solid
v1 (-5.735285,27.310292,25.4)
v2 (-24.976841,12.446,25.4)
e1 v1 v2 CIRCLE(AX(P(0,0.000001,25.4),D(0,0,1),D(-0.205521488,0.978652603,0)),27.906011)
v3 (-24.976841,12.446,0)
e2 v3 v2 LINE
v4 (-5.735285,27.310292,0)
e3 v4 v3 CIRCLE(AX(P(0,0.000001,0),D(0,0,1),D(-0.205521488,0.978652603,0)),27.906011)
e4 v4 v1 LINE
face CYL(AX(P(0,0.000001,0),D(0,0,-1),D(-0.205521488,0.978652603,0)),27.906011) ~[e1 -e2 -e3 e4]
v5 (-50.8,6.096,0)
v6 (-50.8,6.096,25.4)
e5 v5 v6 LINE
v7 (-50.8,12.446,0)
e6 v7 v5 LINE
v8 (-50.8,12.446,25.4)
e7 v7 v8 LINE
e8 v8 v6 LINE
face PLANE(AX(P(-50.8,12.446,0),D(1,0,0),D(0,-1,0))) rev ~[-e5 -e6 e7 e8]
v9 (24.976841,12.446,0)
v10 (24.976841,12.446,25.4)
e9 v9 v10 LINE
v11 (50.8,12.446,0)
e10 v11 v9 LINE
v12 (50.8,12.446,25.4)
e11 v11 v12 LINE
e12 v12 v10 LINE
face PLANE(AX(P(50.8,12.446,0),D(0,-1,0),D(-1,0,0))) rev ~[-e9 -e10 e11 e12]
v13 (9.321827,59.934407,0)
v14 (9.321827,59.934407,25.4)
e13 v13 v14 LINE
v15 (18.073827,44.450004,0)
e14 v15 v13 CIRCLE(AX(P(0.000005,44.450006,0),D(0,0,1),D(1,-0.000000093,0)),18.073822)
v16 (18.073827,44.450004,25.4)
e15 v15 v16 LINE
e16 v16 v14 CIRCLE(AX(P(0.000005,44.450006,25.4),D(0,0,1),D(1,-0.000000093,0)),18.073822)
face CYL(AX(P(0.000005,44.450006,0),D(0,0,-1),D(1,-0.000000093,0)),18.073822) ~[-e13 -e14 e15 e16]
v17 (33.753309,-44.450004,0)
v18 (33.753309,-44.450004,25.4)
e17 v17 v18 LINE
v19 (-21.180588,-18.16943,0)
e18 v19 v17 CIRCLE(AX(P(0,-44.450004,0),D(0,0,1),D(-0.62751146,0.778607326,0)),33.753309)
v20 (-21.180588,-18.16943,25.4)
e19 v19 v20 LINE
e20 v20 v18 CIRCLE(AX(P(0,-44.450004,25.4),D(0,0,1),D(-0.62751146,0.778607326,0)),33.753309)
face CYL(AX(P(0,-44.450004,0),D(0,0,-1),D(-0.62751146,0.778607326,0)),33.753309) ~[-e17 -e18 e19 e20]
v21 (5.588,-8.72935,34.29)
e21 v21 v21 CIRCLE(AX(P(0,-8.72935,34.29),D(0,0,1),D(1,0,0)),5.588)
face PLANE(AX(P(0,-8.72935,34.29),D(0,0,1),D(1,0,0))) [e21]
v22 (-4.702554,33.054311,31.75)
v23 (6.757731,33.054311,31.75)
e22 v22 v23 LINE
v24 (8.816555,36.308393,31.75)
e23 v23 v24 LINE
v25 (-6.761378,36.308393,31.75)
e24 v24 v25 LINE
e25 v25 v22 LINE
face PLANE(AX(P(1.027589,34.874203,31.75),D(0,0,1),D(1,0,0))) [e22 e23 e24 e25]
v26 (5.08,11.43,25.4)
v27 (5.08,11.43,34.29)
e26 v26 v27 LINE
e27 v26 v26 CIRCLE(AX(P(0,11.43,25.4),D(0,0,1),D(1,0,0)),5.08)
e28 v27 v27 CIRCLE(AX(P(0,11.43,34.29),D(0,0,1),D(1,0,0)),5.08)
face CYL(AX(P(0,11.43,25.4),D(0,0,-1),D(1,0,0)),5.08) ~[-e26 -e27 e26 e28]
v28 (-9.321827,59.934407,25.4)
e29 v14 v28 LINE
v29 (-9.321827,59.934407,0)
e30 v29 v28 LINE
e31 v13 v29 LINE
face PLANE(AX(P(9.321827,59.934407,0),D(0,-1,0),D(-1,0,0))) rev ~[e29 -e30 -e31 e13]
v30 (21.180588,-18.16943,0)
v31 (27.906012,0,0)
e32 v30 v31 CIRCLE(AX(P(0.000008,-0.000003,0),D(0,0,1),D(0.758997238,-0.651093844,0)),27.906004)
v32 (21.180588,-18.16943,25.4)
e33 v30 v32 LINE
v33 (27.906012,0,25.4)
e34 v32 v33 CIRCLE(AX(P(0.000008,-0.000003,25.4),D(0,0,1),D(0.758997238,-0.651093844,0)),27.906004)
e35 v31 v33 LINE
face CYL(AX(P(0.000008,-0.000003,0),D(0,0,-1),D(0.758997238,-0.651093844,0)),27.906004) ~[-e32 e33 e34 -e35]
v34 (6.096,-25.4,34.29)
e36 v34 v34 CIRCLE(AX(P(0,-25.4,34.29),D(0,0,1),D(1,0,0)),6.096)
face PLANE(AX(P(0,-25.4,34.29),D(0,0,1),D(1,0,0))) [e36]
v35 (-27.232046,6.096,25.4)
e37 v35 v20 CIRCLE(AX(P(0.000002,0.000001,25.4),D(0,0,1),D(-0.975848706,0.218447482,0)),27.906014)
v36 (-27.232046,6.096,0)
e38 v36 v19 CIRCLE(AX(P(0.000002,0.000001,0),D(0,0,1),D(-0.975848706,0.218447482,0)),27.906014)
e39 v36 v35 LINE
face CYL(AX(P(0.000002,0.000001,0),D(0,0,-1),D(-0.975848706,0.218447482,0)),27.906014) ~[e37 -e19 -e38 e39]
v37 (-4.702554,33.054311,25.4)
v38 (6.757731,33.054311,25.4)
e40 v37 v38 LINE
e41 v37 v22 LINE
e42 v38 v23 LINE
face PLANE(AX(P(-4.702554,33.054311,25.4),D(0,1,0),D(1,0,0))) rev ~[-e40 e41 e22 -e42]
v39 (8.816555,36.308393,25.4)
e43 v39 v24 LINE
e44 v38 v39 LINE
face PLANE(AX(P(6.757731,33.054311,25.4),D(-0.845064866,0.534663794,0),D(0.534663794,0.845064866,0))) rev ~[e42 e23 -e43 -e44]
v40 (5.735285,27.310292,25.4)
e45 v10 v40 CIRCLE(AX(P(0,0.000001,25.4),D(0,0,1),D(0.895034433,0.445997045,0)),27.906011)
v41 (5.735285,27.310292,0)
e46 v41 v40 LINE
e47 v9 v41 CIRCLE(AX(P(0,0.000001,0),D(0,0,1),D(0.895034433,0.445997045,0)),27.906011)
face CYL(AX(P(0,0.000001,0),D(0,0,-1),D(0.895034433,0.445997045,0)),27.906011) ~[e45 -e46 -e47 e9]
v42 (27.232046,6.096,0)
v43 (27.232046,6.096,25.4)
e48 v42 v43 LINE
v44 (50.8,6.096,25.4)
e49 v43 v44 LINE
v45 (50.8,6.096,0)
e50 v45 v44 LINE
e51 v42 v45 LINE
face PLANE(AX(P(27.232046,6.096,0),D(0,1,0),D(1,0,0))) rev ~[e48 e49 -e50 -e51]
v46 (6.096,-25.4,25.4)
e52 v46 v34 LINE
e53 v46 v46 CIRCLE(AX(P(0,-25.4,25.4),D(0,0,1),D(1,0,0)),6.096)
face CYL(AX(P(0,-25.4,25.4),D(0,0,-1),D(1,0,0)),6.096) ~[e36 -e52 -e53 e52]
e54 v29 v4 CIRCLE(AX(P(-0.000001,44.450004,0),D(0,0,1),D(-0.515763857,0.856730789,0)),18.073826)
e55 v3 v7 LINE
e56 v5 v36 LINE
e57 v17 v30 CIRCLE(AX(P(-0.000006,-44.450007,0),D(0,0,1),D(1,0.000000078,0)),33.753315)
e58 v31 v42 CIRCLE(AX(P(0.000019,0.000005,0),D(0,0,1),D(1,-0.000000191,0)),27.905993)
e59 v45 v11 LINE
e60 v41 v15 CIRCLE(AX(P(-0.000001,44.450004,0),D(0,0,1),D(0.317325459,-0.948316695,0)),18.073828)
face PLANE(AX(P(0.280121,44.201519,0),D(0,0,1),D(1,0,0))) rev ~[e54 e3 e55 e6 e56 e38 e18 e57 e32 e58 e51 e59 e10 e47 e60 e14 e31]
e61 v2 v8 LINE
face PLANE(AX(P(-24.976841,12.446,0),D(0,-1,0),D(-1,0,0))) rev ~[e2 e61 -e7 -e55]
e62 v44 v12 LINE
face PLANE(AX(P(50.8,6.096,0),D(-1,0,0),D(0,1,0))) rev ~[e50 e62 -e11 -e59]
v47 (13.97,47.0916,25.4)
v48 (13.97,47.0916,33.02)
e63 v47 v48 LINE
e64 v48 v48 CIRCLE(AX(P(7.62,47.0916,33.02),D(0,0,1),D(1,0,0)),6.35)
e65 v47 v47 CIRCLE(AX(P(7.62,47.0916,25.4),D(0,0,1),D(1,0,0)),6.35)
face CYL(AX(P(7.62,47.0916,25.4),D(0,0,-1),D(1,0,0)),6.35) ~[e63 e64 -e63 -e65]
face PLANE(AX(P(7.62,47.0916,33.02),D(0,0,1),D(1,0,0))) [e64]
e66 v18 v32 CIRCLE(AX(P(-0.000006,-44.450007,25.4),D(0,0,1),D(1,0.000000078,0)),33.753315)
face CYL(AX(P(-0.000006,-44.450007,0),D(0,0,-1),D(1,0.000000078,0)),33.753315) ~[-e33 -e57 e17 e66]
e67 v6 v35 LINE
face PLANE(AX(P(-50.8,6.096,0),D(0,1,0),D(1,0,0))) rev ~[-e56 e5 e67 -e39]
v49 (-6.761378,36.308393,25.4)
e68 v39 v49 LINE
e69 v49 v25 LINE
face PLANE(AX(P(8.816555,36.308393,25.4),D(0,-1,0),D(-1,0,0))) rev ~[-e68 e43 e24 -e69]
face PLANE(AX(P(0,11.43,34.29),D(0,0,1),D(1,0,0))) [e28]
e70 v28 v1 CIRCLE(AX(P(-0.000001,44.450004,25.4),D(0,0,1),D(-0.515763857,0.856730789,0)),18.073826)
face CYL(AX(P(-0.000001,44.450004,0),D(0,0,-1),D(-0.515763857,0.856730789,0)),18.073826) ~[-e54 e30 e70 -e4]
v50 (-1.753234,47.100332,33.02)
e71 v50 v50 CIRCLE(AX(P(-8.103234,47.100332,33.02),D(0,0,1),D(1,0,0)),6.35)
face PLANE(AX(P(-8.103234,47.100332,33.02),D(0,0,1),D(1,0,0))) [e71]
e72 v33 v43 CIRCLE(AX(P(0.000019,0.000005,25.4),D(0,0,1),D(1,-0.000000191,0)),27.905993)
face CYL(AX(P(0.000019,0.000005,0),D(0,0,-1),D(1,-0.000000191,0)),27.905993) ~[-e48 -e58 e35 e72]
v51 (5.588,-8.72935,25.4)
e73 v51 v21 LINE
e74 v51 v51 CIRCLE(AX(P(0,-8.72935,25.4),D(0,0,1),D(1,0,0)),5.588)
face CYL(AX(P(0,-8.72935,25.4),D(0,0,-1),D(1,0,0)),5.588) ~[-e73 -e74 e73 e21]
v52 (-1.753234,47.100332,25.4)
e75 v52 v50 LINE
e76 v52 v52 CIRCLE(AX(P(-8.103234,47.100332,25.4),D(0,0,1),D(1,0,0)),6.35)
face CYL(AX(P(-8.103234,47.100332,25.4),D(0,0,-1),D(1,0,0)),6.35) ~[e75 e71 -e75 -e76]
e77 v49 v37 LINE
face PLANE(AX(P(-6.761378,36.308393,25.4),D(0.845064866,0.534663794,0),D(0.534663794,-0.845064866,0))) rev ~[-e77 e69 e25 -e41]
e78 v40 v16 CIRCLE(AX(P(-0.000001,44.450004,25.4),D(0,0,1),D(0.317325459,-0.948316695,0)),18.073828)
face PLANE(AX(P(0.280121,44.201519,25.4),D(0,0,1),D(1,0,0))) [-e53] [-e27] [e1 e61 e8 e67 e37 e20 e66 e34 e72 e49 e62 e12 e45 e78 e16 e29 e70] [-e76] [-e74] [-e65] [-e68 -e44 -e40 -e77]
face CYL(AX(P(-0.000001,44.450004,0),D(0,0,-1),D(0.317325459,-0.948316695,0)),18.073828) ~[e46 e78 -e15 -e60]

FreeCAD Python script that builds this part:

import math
import FreeCAD as App
import Part
import Sketcher
from FreeCAD import Vector
Q = App.Units.Quantity

doc = App.newDocument("Part")
body = doc.addObject("PartDesign::Body", "Body")

sketch1 = body.newObject("Sketcher::SketchObject", "Sketch")
sketch1.AttachmentSupport = (doc.getObject("XY_Plane"), [""])
sketch1.MapMode = "FlatFace"
sketch1.addGeometry([
    Part.LineSegment(Vector(9.321827, 59.934407, 0), Vector(-9.321827, 59.934407, 0)),
    Part.ArcOfCircle(Part.Circle(Vector(-0.000001, 44.450004, 0), Vector(0, 0, 1), 18.073826), math.radians(121.048526), math.radians(251.498746)),
    Part.ArcOfCircle(Part.Circle(Vector(0, 0.000001, 0), Vector(0, 0, 1), 27.906011), math.radians(101.860028), math.radians(153.512853)),
    Part.LineSegment(Vector(-24.976841, 12.446, 0), Vector(-50.8, 12.446, 0)),
    Part.LineSegment(Vector(-50.8, 12.446, 0), Vector(-50.8, 6.096, 0)),
    Part.LineSegment(Vector(-50.8, 6.096, 0), Vector(-27.232046, 6.096, 0)),
    Part.ArcOfCircle(Part.Circle(Vector(0.000002, 0.000001, 0), Vector(0, 0, 1), 27.906014), math.radians(167.382137), math.radians(220.624117)),
    Part.ArcOfCircle(Part.Circle(Vector(0, -44.450004, 0), Vector(0, 0, 1), 33.753309), math.radians(128.86676), math.radians(359.999999)),
    Part.ArcOfCircle(Part.Circle(Vector(-0.000006, -44.450007, 0), Vector(0, 0, 1), 33.753315), math.radians(0.000004), math.radians(51.133235)),
    Part.ArcOfCircle(Part.Circle(Vector(0.000008, -0.000003, 0), Vector(0, 0, 1), 27.906004), math.radians(-40.624124), math.radians(0.000006)),
    Part.ArcOfCircle(Part.Circle(Vector(0.000019, 0.000005, 0), Vector(0, 0, 1), 27.905993), math.radians(-0.000011), math.radians(12.617864)),
    Part.LineSegment(Vector(27.232046, 6.096, 0), Vector(50.8, 6.096, 0)),
    Part.LineSegment(Vector(50.8, 6.096, 0), Vector(50.8, 12.446, 0)),
    Part.LineSegment(Vector(50.8, 12.446, 0), Vector(24.976841, 12.446, 0)),
    Part.ArcOfCircle(Part.Circle(Vector(0, 0.000001, 0), Vector(0, 0, 1), 27.906011), math.radians(26.487147), math.radians(78.139972)),
    Part.ArcOfCircle(Part.Circle(Vector(-0.000001, 44.450004, 0), Vector(0, 0, 1), 18.073828), math.radians(-71.498743), math.radians(-0.000002)),
    Part.ArcOfCircle(Part.Circle(Vector(0.000005, 44.450006, 0), Vector(0, 0, 1), 18.073822), math.radians(-0.000005), math.radians(58.951481)),
], False)
sketch1.addConstraint([
    Sketcher.Constraint("Coincident", 0, 2, 1, 1),
    Sketcher.Constraint("Coincident", 1, 2, 2, 1),
    Sketcher.Constraint("Coincident", 2, 2, 3, 1),
    Sketcher.Constraint("Coincident", 3, 2, 4, 1),
    Sketcher.Constraint("Coincident", 4, 2, 5, 1),
    Sketcher.Constraint("Coincident", 5, 2, 6, 1),
    Sketcher.Constraint("Coincident", 6, 2, 7, 1),
    Sketcher.Constraint("Coincident", 7, 2, 8, 1),
    Sketcher.Constraint("Coincident", 8, 2, 9, 1),
    Sketcher.Constraint("Coincident", 9, 2, 10, 1),
    Sketcher.Constraint("Coincident", 10, 2, 11, 1),
    Sketcher.Constraint("Coincident", 11, 2, 12, 1),
    Sketcher.Constraint("Coincident", 12, 2, 13, 1),
    Sketcher.Constraint("Coincident", 13, 2, 14, 1),
    Sketcher.Constraint("Coincident", 14, 2, 15, 1),
    Sketcher.Constraint("Coincident", 15, 2, 16, 1),
    Sketcher.Constraint("Coincident", 16, 2, 0, 1),
    Sketcher.Constraint("Horizontal", 0),
    Sketcher.Constraint("Horizontal", 3),
    Sketcher.Constraint("Vertical", 4),
    Sketcher.Constraint("Horizontal", 5),
    Sketcher.Constraint("Horizontal", 11),
    Sketcher.Constraint("Vertical", 12),
    Sketcher.Constraint("Horizontal", 13),
    Sketcher.Constraint("Coincident", 2, 3, -1, 1),
    Sketcher.Constraint("Coincident", 6, 3, -1, 1),
    Sketcher.Constraint("Coincident", 9, 3, -1, 1),
    Sketcher.Constraint("Coincident", 14, 3, -1, 1),
    Sketcher.Constraint("Coincident", 8, 3, 7, 3),
    Sketcher.Constraint("Coincident", 15, 3, 1, 3),
    Sketcher.Constraint("Coincident", 16, 3, 1, 3),
    Sketcher.Constraint("PointOnObject", 1, 3, -2),
    Sketcher.Constraint("PointOnObject", 7, 3, -2),
    Sketcher.Constraint("PointOnObject", 9, 2, -1),
    Sketcher.Constraint("DistanceX", 3, 2, -1, 1, Q("2 in")),
    Sketcher.Constraint("DistanceX", -1, 1, 11, 2, Q("2 in")),
    Sketcher.Constraint("DistanceY", 4, 2, 4, 1, Q("0.25 in")),
    Sketcher.Constraint("DistanceY", 12, 1, 12, 2, Q("0.25 in")),
    Sketcher.Constraint("DistanceY", -1, 1, 1, 3, Q("1.7500001 in")),
    Sketcher.Constraint("DistanceY", 7, 3, -1, 1, Q("1.7500001 in")),
    Sketcher.Constraint("DistanceY", -1, 1, 2, 2, Q("0.49 in")),
    Sketcher.Constraint("DistanceY", 7, 2, -1, 1, Q("1.7500002 in")),
    Sketcher.Constraint("DistanceY", -1, 1, 10, 2, Q("0.24 in")),
    Sketcher.Constraint("DistanceY", -1, 1, 15, 2, Q("1.7500002 in")),
    Sketcher.Constraint("DistanceY", 10, 3, 1, 3, Q("1.7499999 in")),
    Sketcher.Constraint("Radius", 2, Q("27.906011 mm")),
    Sketcher.Constraint("Radius", 7, Q("33.753309 mm")),
    Sketcher.Constraint("Radius", 14, Q("27.906011 mm")),
    Sketcher.Constraint("Radius", 1, Q("18.073826 mm")),
    Sketcher.Constraint("Radius", 6, Q("27.906014 mm")),
    Sketcher.Constraint("Radius", 9, Q("27.906004 mm")),
    Sketcher.Constraint("Radius", 10, Q("27.905993 mm")),
    Sketcher.Constraint("Radius", 15, Q("18.073828 mm")),
    Sketcher.Constraint("DistanceY", 16, 3, 0, 2, Q("15.484401 mm")),
])
pad1 = body.newObject("PartDesign::Pad", "Pad")
pad1.Profile = sketch1
pad1.Length = Q("1 in")

sketch2 = body.newObject("Sketcher::SketchObject", "Sketch001")
sketch2.AttachmentSupport = (doc.getObject("XY_Plane"), [""])
sketch2.MapMode = "FlatFace"
sketch2.AttachmentOffset = App.Placement(Vector(0, 0, 1 * 25.4), App.Rotation())
sketch2.addGeometry([
    Part.Circle(Vector(-8, 47, 0), Vector(0, 0, 1), 6),
    Part.Circle(Vector(8, 47, 0), Vector(0, 0, 1), 6),
], False)
sketch2.addConstraint([
    Sketcher.Constraint("Equal", 0, 1),
    Sketcher.Constraint("Diameter", 0, Q("0.5 in")),
    Sketcher.Constraint("DistanceX", -1, 1, 1, 3, Q("0.3 in")),
    Sketcher.Constraint("DistanceY", -1, 1, 1, 3, Q("1.854 in")),
    Sketcher.Constraint("DistanceX", 0, 3, -1, 1, Q("8.103234 mm")),
    Sketcher.Constraint("DistanceY", -1, 1, 0, 3, Q("47.100332 mm")),
])
pad2 = body.newObject("PartDesign::Pad", "Pad001")
pad2.Profile = sketch2
pad2.Length = Q("0.3 in")

sketch3 = body.newObject("Sketcher::SketchObject", "Sketch002")
sketch3.AttachmentSupport = (doc.getObject("XY_Plane"), [""])
sketch3.MapMode = "FlatFace"
sketch3.AttachmentOffset = App.Placement(Vector(0, 0, 1 * 25.4), App.Rotation())
sketch3.addGeometry([
    Part.Circle(Vector(0, 11, 0), Vector(0, 0, 1), 5),
    Part.Circle(Vector(0, -9, 0), Vector(0, 0, 1), 6),
    Part.Circle(Vector(0, -25, 0), Vector(0, 0, 1), 6),
], False)
sketch3.addConstraint([
    Sketcher.Constraint("PointOnObject", 0, 3, -2),
    Sketcher.Constraint("PointOnObject", 1, 3, -2),
    Sketcher.Constraint("PointOnObject", 2, 3, -2),
    Sketcher.Constraint("Diameter", 0, Q("0.4 in")),
    Sketcher.Constraint("Diameter", 1, Q("0.44 in")),
    Sketcher.Constraint("Diameter", 2, Q("0.48 in")),
    Sketcher.Constraint("DistanceY", 2, 3, -1, 1, Q("1 in")),
    Sketcher.Constraint("DistanceY", -1, 1, 0, 3, Q("0.45 in")),
    Sketcher.Constraint("DistanceY", 1, 3, -1, 1, Q("8.72935 mm")),
])
pad3 = body.newObject("PartDesign::Pad", "Pad002")
pad3.Profile = sketch3
pad3.Length = Q("0.35 in")

sketch4 = body.newObject("Sketcher::SketchObject", "Sketch003")
sketch4.AttachmentSupport = (doc.getObject("XY_Plane"), [""])
sketch4.MapMode = "FlatFace"
sketch4.AttachmentOffset = App.Placement(Vector(0, 0, 1 * 25.4), App.Rotation())
sketch4.addGeometry([
    Part.LineSegment(Vector(-6.8, 36.3, 0), Vector(-4.7, 33.1, 0)),
    Part.LineSegment(Vector(-4.7, 33.1, 0), Vector(6.8, 33.1, 0)),
    Part.LineSegment(Vector(6.8, 33.1, 0), Vector(8.8, 36.3, 0)),
    Part.LineSegment(Vector(8.8, 36.3, 0), Vector(-6.8, 36.3, 0)),
], False)
sketch4.addConstraint([
    Sketcher.Constraint("Coincident", 0, 2, 1, 1),
    Sketcher.Constraint("Coincident", 1, 2, 2, 1),
    Sketcher.Constraint("Coincident", 2, 2, 3, 1),
    Sketcher.Constraint("Coincident", 3, 2, 0, 1),
    Sketcher.Constraint("Horizontal", 1),
    Sketcher.Constraint("Horizontal", 3),
    Sketcher.Constraint("Equal", 0, 2),
    Sketcher.Constraint("Distance", 0, Q("3.850689 mm")),
    Sketcher.Constraint("DistanceX", 1, 1, 1, 2, Q("11.460285 mm")),
    Sketcher.Constraint("DistanceX", 3, 2, 3, 1, Q("15.577933 mm")),
    Sketcher.Constraint("DistanceY", -1, 1, 0, 2, Q("33.054311 mm")),
    Sketcher.Constraint("DistanceX", -1, 1, 1, 2, Q("6.757731 mm")),
])
pad4 = body.newObject("PartDesign::Pad", "Pad003")
pad4.Profile = sketch4
pad4.Length = Q("0.25 in")

doc.recompute()
